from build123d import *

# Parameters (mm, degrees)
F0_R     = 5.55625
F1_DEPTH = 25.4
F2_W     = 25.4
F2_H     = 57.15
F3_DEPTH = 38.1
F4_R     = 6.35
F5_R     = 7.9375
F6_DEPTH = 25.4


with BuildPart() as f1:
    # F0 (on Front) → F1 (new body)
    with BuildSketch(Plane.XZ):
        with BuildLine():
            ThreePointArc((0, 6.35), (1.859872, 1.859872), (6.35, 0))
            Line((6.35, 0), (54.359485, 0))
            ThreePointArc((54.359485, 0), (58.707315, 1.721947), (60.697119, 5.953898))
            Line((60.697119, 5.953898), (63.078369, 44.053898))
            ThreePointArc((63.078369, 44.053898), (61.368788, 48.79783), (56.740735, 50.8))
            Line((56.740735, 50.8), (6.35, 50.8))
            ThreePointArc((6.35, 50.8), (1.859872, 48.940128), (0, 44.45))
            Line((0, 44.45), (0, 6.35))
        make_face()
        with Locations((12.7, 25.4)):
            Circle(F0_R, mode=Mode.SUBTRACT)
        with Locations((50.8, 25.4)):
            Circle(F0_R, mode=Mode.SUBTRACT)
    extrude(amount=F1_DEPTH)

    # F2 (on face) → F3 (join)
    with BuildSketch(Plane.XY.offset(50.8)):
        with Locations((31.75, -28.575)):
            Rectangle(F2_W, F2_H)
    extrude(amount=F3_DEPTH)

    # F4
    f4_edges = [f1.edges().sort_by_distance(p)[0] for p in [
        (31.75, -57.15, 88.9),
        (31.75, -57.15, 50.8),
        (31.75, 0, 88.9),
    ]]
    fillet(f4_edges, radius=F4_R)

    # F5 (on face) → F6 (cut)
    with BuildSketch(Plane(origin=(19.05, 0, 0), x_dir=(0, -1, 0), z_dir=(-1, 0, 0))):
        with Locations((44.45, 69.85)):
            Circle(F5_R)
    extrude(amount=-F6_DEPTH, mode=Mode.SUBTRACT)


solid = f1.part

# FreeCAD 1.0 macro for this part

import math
import FreeCAD as App
import Part
import Sketcher
Q = App.Units.Quantity


def edges_at(feature, points):
    """Names of the edges that pass closest to the given points."""
    edges = feature.Shape.Edges
    near = lambda p: min(range(len(edges)), key=lambda i: edges[i].distToShape(Part.Vertex(*p))[0])
    return sorted({f"Edge{near(p) + 1}" for p in points})


def add_polygon(sketch, points):
    """Adds a closed chain of lines whose ends are joined by coincident constraints."""
    first, n = sketch.GeometryCount, len(points)
    for a, b in zip(points, points[1:] + points[:1]):
        sketch.addGeometry(Part.LineSegment(App.Vector(*a, 0), App.Vector(*b, 0)), False)
    for i in range(n):
        sketch.addConstraint(Sketcher.Constraint("Coincident", first + i, 2, first + (i + 1) % n, 1))

doc = App.newDocument("Part")
params = doc.addObject("Spreadsheet::Sheet", "Params")
for row, (alias, value) in enumerate([
    ("sketch1_radius", "0.25 in"),
    ("sketch1_diameter", "0.4375 in"),
    ("sketch1_height", "1.5 in"),
    ("pad1_length", "1 in"),
    ("sketch2_width", "1 in"),
    ("sketch2_height", "2.25 in"),
    ("pad2_length", "1.5 in"),
    ("fillet_radius", "0.25 in"),
    ("sketch3_diameter", "0.625 in"),
    ("pocket1_length", "1 in"),
], start=1):
    params.set(f"A{row}", alias)
    params.set(f"B{row}", "=" + value)
    params.setAlias(f"B{row}", alias)

body = doc.addObject("PartDesign::Body", "Body")

sketch1 = body.newObject("Sketcher::SketchObject", "Sketch")
sketch1.AttachmentSupport = (doc.getObject("XZ_Plane"), [""])
sketch1.MapMode = "FlatFace"
sketch1.addGeometry([
    Part.ArcOfCircle(Part.Circle(App.Vector(6.35, 6.35, 0), App.Vector(0, 0, 1), 6.35), math.radians(-179.999998), math.radians(-90.000002)),
    Part.LineSegment(App.Vector(6.35, 0, 0), App.Vector(54.359485, 0, 0)),
    Part.ArcOfCircle(Part.Circle(App.Vector(54.359485, 6.35, 0), App.Vector(0, 0, 1), 6.35), math.radians(-90), math.radians(-3.576335)),
    Part.LineSegment(App.Vector(60.697119, 5.953898, 0), App.Vector(63.078369, 44.053898, 0)),
    Part.ArcOfCircle(Part.Circle(App.Vector(56.740735, 44.45, 0), App.Vector(0, 0, 1), 6.35), math.radians(-3.576332), math.radians(90)),
    Part.LineSegment(App.Vector(56.740735, 50.8, 0), App.Vector(6.35, 50.8, 0)),
    Part.ArcOfCircle(Part.Circle(App.Vector(6.35, 44.45, 0), App.Vector(0, 0, 1), 6.35), math.radians(90.000002), math.radians(179.999998)),
    Part.LineSegment(App.Vector(0, 44.45, 0), App.Vector(0, 6.35, 0)),
    Part.Circle(App.Vector(12.7, 25.4, 0), App.Vector(0, 0, 1), 5.55625),
    Part.Circle(App.Vector(50.8, 25.4, 0), App.Vector(0, 0, 1), 5.55625),
], False)
sketch1.addConstraint([
    Sketcher.Constraint("Tangent", 0, 2, 1, 1),
    Sketcher.Constraint("Tangent", 1, 2, 2, 1),
    Sketcher.Constraint("Tangent", 2, 2, 3, 1),
    Sketcher.Constraint("Tangent", 3, 2, 4, 1),
    Sketcher.Constraint("Tangent", 4, 2, 5, 1),
    Sketcher.Constraint("Tangent", 5, 2, 6, 1),
    Sketcher.Constraint("Tangent", 6, 2, 7, 1),
    Sketcher.Constraint("Tangent", 7, 2, 0, 1),
    Sketcher.Constraint("Horizontal", 1),
    Sketcher.Constraint("Horizontal", 5),
    Sketcher.Constraint("Vertical", 7),
    Sketcher.Constraint("Equal", 0, 2),
    Sketcher.Constraint("Equal", 2, 4),
    Sketcher.Constraint("Equal", 4, 6),
    Sketcher.Constraint("Equal", 8, 9),
    Sketcher.Constraint("PointOnObject", 0, 2, -1),
    Sketcher.Constraint("PointOnObject", 6, 2, -2),
    Sketcher.Constraint("Horizontal", 8, 3, 9, 3),
    Sketcher.Constraint("Radius", 0, Q("0.25 in")),
    Sketcher.Constraint("Diameter", 8, Q("0.4375 in")),
    Sketcher.Constraint("DistanceY", 7, 2, 7, 1, Q("1.5 in")),
    Sketcher.Constraint("DistanceY", -1, 1, 8, 3, Q("1 in")),
    Sketcher.Constraint("DistanceX", -1, 1, 9, 3, Q("2 in")),
    Sketcher.Constraint("DistanceX", -1, 1, 8, 3, Q("0.5 in")),
    Sketcher.Constraint("DistanceX", 2, 3, 4, 3, Q("0.09375 in")),
    Sketcher.Constraint("DistanceX", 1, 1, 1, 2, Q("48.009485 mm")),
])
sketch1.setExpression("Constraints[18]", "Params.sketch1_radius")
sketch1.setExpression("Constraints[19]", "Params.sketch1_diameter")
sketch1.setExpression("Constraints[20]", "Params.sketch1_height")
pad1 = body.newObject("PartDesign::Pad", "Pad")
pad1.Profile = sketch1
pad1.setExpression("Length", "Params.pad1_length")

sketch2 = body.newObject("Sketcher::SketchObject", "Sketch001")
sketch2.AttachmentSupport = (doc.getObject("XY_Plane"), [""])
sketch2.MapMode = "FlatFace"
sketch2.AttachmentOffset = App.Placement(App.Vector(0, 0, 2 * 25.4), App.Rotation())
add_polygon(sketch2, [(19.05, 0), (19.05, -57.15), (44.45, -57.15), (44.45, 0)])
sketch2.addConstraint([
    Sketcher.Constraint("Vertical", 0),
    Sketcher.Constraint("Horizontal", 1),
    Sketcher.Constraint("Vertical", 2),
    Sketcher.Constraint("Horizontal", 3),
    Sketcher.Constraint("PointOnObject", 2, 2, -1),
    Sketcher.Constraint("DistanceX", 1, 1, 1, 2, Q("1 in")),
    Sketcher.Constraint("DistanceY", 0, 2, 0, 1, Q("2.25 in")),
    Sketcher.Constraint("DistanceX", -1, 1, 0, 2, Q("0.75 in")),
])
sketch2.setExpression("Constraints[9]", "Params.sketch2_width")
sketch2.setExpression("Constraints[10]", "Params.sketch2_height")
pad2 = body.newObject("PartDesign::Pad", "Pad001")
pad2.Profile = sketch2
pad2.setExpression("Length", "Params.pad2_length")
doc.recompute()

fillet = body.newObject("PartDesign::Fillet", "Fillet")
fillet.Base = (pad2, edges_at(pad2, [(31.75, -57.15, 88.9), (31.75, -57.15, 50.8), (31.75, 0, 88.9)]))
fillet.setExpression("Radius", "Params.fillet_radius")

sketch3 = body.newObject("Sketcher::SketchObject", "Sketch002")
sketch3.AttachmentSupport = (doc.getObject("YZ_Plane"), [""])
sketch3.MapMode = "FlatFace"
sketch3.AttachmentOffset = App.Placement(App.Vector(0, 0, 0.75 * 25.4), App.Rotation())
sketch3.addGeometry(Part.Circle(App.Vector(-44.45, 69.85, 0), App.Vector(0, 0, 1), 7.9375), False)
sketch3.addConstraint([
    Sketcher.Constraint("Diameter", 0, Q("0.625 in")),
    Sketcher.Constraint("DistanceX", 0, 3, -1, 1, Q("1.75 in")),
    Sketcher.Constraint("DistanceY", -1, 1, 0, 3, Q("2.75 in")),
])
sketch3.setExpression("Constraints[0]", "Params.sketch3_diameter")
pocket1 = body.newObject("PartDesign::Pocket", "Pocket")
pocket1.Profile = sketch3
pocket1.setExpression("Length", "Params.pocket1_length")
pocket1.Reversed = True

doc.recompute()
